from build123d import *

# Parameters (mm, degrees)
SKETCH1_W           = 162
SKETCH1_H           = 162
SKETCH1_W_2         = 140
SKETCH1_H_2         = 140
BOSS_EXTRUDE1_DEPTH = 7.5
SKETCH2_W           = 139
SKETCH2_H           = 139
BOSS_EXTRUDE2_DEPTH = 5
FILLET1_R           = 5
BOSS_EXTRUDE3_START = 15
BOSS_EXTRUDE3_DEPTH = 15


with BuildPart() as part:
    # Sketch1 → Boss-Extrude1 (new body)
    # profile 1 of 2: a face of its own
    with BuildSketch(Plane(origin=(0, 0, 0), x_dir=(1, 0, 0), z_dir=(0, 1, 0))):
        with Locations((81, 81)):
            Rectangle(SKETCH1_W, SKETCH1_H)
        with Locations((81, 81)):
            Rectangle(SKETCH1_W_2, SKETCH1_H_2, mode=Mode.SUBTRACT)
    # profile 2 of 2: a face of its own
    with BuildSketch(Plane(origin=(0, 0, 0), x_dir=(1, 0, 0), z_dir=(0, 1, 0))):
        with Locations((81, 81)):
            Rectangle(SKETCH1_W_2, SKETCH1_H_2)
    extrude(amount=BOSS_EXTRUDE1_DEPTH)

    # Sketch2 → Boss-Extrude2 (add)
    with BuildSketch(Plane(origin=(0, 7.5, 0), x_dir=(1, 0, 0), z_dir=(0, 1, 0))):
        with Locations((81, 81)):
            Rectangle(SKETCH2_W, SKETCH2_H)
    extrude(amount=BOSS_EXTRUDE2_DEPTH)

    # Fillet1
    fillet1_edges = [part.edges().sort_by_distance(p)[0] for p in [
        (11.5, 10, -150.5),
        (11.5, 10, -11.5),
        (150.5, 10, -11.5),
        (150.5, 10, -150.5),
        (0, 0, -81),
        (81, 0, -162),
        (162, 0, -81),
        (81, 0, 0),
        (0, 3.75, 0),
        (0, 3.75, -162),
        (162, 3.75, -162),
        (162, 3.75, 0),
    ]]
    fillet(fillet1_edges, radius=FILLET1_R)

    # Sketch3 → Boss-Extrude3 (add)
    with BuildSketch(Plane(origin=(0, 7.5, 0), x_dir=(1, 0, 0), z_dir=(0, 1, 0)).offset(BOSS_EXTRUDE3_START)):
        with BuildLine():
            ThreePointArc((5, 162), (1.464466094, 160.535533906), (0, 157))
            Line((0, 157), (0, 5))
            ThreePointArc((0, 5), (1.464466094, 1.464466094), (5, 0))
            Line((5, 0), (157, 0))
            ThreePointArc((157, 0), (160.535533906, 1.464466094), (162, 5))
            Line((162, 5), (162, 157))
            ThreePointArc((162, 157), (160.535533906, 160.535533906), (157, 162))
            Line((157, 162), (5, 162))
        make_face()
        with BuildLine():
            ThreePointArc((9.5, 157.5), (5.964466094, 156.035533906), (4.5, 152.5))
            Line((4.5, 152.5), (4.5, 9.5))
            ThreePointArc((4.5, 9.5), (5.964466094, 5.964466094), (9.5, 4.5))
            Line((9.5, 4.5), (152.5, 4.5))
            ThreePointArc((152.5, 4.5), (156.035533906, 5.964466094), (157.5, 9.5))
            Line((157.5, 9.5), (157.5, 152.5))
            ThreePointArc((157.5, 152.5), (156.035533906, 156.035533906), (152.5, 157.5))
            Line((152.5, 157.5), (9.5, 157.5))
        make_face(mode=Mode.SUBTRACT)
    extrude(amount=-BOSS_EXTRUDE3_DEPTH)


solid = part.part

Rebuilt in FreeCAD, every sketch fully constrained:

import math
import FreeCAD as App
import Part
import Sketcher
from FreeCAD import Vector


def edges_at(feature, points):
    """Names of the edges that pass closest to the given points."""
    edges = feature.Shape.Edges
    near = lambda p: min(range(len(edges)), key=lambda i: edges[i].distToShape(Part.Vertex(*p))[0])
    return sorted({f"Edge{near(p) + 1}" for p in points})


def add_polygon(sketch, points):
    """Adds a closed chain of lines whose ends are joined by coincident constraints."""
    first, n = sketch.GeometryCount, len(points)
    for a, b in zip(points, points[1:] + points[:1]):
        sketch.addGeometry(Part.LineSegment(App.Vector(*a, 0), App.Vector(*b, 0)), False)
    for i in range(n):
        sketch.addConstraint(Sketcher.Constraint("Coincident", first + i, 2, first + (i + 1) % n, 1))

doc = App.newDocument("Part")
body = doc.addObject("PartDesign::Body", "Body")

# Sketch on XZ plane
sketch1 = doc.addObject("Sketcher::SketchObject", "Sketch")
body.addObject(sketch1)
sketch1.AttachmentSupport = (doc.XZ_Plane, [""])
sketch1.MapMode = "FlatFace"
add_polygon(sketch1, [(0, -162), (0, 0), (162, 0), (162, -162)])  # lines 0-3
sketch1.addConstraint([
    Sketcher.Constraint("Vertical", 0),
    Sketcher.Constraint("Horizontal", 1),
    Sketcher.Constraint("Vertical", 2),
    Sketcher.Constraint("Horizontal", 3),
    Sketcher.Constraint("Coincident", 0, 2, -1, 1),
    Sketcher.Constraint("Equal", 3, 0),
    Sketcher.Constraint("DistanceX", 1, 1, 1, 2, 162.0),
])
pad1 = doc.addObject("PartDesign::Pad", "Pad")
body.addObject(pad1)
pad1.Profile = sketch1
pad1.Length = 7.5
pad1.Reversed = True

# Sketch on XZ plane
sketch2 = doc.addObject("Sketcher::SketchObject", "Sketch001")
body.addObject(sketch2)
sketch2.AttachmentSupport = (doc.XZ_Plane, [""])
sketch2.MapMode = "FlatFace"
sketch2.AttachmentOffset = App.Placement(Vector(0, 0, -7.5), App.Rotation())
add_polygon(sketch2, [(12, -150), (12, -12), (150, -12), (150, -150)])  # lines 0-3
sketch2.addConstraint([
    Sketcher.Constraint("Vertical", 0),
    Sketcher.Constraint("Horizontal", 1),
    Sketcher.Constraint("Vertical", 2),
    Sketcher.Constraint("Horizontal", 3),
    Sketcher.Constraint("Equal", 3, 0),
    Sketcher.Constraint("DistanceX", 1, 1, 1, 2, 139.0),
    Sketcher.Constraint("DistanceX", -1, 1, 0, 2, 11.5),
    Sketcher.Constraint("DistanceY", 0, 2, -1, 1, 11.5),
])
pad2 = doc.addObject("PartDesign::Pad", "Pad001")
body.addObject(pad2)
pad2.Profile = sketch2
pad2.Length = 5
pad2.Reversed = True
doc.recompute()

fillet = doc.addObject("PartDesign::Fillet", "Fillet")
body.addObject(fillet)
fillet.Base = (pad2, edges_at(pad2, [
    (11.5, 10, -150.5),
    (11.5, 10, -11.5),
    (150.5, 10, -11.5),
    (150.5, 10, -150.5),
    (0, 0, -81),
    (81, 0, -162),
    (162, 0, -81),
    (81, 0, 0),
    (0, 3.75, 0),
    (0, 3.75, -162),
    (162, 3.75, -162),
    (162, 3.75, 0),
]))
fillet.Radius = 5

# Sketch on XZ plane
sketch3 = doc.addObject("Sketcher::SketchObject", "Sketch002")
body.addObject(sketch3)
sketch3.AttachmentSupport = (doc.XZ_Plane, [""])
sketch3.MapMode = "FlatFace"
sketch3.AttachmentOffset = App.Placement(Vector(0, 0, -22.5), App.Rotation())
sketch3.addGeometry([
    Part.ArcOfCircle(Part.Circle(Vector(5, -157, 0), Vector(0, 0, 1), 5), math.radians(180), math.radians(270)),  # 0
    Part.LineSegment(Vector(0, -157, 0), Vector(0, -5, 0)),  # 1
    Part.ArcOfCircle(Part.Circle(Vector(5, -5, 0), Vector(0, 0, 1), 5), math.radians(90), math.radians(180)),  # 2
    Part.LineSegment(Vector(5, 0, 0), Vector(157, 0, 0)),  # 3
    Part.ArcOfCircle(Part.Circle(Vector(157, -5, 0), Vector(0, 0, 1), 5), math.radians(0), math.radians(90)),  # 4
    Part.LineSegment(Vector(162, -5, 0), Vector(162, -157, 0)),  # 5
    Part.ArcOfCircle(Part.Circle(Vector(157, -157, 0), Vector(0, 0, 1), 5), math.radians(-90), math.radians(0)),  # 6
    Part.LineSegment(Vector(157, -162, 0), Vector(5, -162, 0)),  # 7
    Part.ArcOfCircle(Part.Circle(Vector(10, -152, 0), Vector(0, 0, 1), 5), math.radians(180), math.radians(270)),  # 8
    Part.LineSegment(Vector(10, -158, 0), Vector(152, -158, 0)),  # 9
    Part.ArcOfCircle(Part.Circle(Vector(152, -152, 0), Vector(0, 0, 1), 5), math.radians(-90), math.radians(0)),  # 10
    Part.LineSegment(Vector(158, -152, 0), Vector(158, -10, 0)),  # 11
    Part.ArcOfCircle(Part.Circle(Vector(152, -10, 0), Vector(0, 0, 1), 5), math.radians(0), math.radians(90)),  # 12
    Part.LineSegment(Vector(152, -4, 0), Vector(10, -4, 0)),  # 13
    Part.ArcOfCircle(Part.Circle(Vector(10, -10, 0), Vector(0, 0, 1), 5), math.radians(90), math.radians(180)),  # 14
    Part.LineSegment(Vector(4, -10, 0), Vector(4, -152, 0)),  # 15
], False)
sketch3.addConstraint([
    Sketcher.Constraint("Tangent", 0, 1, 1, 1),
    Sketcher.Constraint("Tangent", 1, 2, 2, 2),
    Sketcher.Constraint("Tangent", 2, 1, 3, 1),
    Sketcher.Constraint("Tangent", 3, 2, 4, 2),
    Sketcher.Constraint("Tangent", 4, 1, 5, 1),
    Sketcher.Constraint("Tangent", 5, 2, 6, 2),
    Sketcher.Constraint("Tangent", 6, 1, 7, 1),
    Sketcher.Constraint("Tangent", 7, 2, 0, 2),
    Sketcher.Constraint("Tangent", 8, 2, 9, 1),
    Sketcher.Constraint("Tangent", 9, 2, 10, 1),
    Sketcher.Constraint("Tangent", 10, 2, 11, 1),
    Sketcher.Constraint("Tangent", 11, 2, 12, 1),
    Sketcher.Constraint("Tangent", 12, 2, 13, 1),
    Sketcher.Constraint("Tangent", 13, 2, 14, 1),
    Sketcher.Constraint("Tangent", 14, 2, 15, 1),
    Sketcher.Constraint("Tangent", 15, 2, 8, 1),
    Sketcher.Constraint("Vertical", 1),
    Sketcher.Constraint("Horizontal", 3),
    Sketcher.Constraint("Vertical", 5),
    Sketcher.Constraint("Horizontal", 7),
    Sketcher.Constraint("Horizontal", 9),
    Sketcher.Constraint("Vertical", 11),
    Sketcher.Constraint("Horizontal", 13),
    Sketcher.Constraint("Vertical", 15),
    Sketcher.Constraint("Equal", 0, 2),
    Sketcher.Constraint("Equal", 2, 4),
    Sketcher.Constraint("Equal", 4, 6),
    Sketcher.Constraint("Equal", 6, 8),
    Sketcher.Constraint("Equal", 8, 10),
    Sketcher.Constraint("Equal", 10, 12),
    Sketcher.Constraint("Equal", 12, 14),
    Sketcher.Constraint("PointOnObject", 0, 1, -2),
    Sketcher.Constraint("PointOnObject", 2, 1, -1),
    Sketcher.Constraint("Equal", 7, 1),
    Sketcher.Constraint("Equal", 13, 11),
    Sketcher.Constraint("Radius", 0, 5.0),
    Sketcher.Constraint("DistanceX", 3, 1, 3, 2, 152.0),
    Sketcher.Constraint("DistanceX", 9, 1, 9, 2, 143.0),
    Sketcher.Constraint("DistanceX", -1, 1, 8, 3, 9.5),
    Sketcher.Constraint("DistanceY", 8, 3, -1, 1, 152.5),
])
pad3 = doc.addObject("PartDesign::Pad", "Pad002")
body.addObject(pad3)
pad3.Profile = sketch3
pad3.Length = 15

doc.recompute()
